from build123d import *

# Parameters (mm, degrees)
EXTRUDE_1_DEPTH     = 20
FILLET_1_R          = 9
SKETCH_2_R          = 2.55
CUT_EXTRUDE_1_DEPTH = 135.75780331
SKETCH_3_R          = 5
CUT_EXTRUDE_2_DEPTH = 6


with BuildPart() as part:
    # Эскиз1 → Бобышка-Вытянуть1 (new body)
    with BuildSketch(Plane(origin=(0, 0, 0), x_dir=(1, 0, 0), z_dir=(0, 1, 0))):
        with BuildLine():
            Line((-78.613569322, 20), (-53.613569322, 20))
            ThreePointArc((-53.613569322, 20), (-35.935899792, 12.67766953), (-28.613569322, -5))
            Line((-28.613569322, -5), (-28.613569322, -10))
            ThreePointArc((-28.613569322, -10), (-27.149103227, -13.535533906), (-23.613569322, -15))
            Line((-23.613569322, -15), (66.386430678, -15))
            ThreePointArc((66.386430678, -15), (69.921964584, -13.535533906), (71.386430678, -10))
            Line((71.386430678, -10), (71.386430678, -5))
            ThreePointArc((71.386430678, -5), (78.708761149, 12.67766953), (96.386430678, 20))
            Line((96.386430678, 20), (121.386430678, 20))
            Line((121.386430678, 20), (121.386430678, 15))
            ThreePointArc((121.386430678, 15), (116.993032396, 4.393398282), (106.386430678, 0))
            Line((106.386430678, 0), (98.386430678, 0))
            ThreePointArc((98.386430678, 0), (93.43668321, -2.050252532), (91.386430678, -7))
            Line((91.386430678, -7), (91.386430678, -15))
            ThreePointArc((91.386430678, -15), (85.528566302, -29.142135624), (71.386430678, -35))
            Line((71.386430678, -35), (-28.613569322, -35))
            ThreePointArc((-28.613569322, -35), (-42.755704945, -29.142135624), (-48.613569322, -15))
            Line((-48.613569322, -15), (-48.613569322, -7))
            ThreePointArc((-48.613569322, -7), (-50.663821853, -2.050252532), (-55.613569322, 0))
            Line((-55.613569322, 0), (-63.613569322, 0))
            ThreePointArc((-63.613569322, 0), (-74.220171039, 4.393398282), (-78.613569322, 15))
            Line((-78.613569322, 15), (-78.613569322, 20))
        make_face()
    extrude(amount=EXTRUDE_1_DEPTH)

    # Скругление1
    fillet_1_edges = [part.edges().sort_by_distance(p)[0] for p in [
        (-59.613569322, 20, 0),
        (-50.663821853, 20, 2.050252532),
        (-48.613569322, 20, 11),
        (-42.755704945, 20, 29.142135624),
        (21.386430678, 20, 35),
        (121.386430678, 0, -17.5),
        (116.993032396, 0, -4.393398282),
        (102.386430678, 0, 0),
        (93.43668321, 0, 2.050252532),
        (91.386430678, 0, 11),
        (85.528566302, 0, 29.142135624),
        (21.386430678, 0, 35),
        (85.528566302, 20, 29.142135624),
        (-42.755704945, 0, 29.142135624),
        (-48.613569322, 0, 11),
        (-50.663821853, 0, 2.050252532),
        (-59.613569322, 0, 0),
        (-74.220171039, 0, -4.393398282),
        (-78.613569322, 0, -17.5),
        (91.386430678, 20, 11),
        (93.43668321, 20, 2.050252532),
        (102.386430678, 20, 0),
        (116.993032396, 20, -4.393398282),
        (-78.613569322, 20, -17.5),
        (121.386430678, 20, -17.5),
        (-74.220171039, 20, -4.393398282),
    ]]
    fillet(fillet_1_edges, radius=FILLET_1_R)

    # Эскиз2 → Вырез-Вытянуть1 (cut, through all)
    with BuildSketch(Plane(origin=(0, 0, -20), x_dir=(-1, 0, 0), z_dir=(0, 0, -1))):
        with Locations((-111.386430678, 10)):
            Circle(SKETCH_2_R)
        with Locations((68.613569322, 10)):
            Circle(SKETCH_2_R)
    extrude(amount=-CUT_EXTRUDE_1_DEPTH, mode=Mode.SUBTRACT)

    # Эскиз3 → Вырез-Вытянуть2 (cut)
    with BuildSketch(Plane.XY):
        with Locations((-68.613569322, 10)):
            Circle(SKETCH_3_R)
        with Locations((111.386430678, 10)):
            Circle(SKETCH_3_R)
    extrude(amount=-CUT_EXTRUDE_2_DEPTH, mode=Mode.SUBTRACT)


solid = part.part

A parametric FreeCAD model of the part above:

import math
import FreeCAD as App
import Part
import Sketcher


def edges_at(feature, points):
    """Names of the edges that pass closest to the given points."""
    edges = feature.Shape.Edges
    near = lambda p: min(range(len(edges)), key=lambda i: edges[i].distToShape(Part.Vertex(*p))[0])
    return sorted({f"Edge{near(p) + 1}" for p in points})

doc = App.newDocument("Part")
params = doc.addObject("Spreadsheet::Sheet", "Params")
for row, (alias, value) in enumerate([
    ("sketch1_radius", "15 mm"),
    ("sketch1_radius2", "7 mm"),
    ("sketch1_radius3", "20 mm"),
    ("sketch1_radius4", "25 mm"),
    ("sketch1_radius5", "5 mm"),
    ("pad1_length", "20 mm"),
    ("fillet_radius", "9 mm"),
    ("sketch2_diameter", "5.1 mm"),
    ("sketch3_diameter", "10 mm"),
    ("pocket2_length", "6 mm"),
], start=1):
    params.set(f"A{row}", alias)
    params.set(f"B{row}", "=" + value)
    params.setAlias(f"B{row}", alias)

body = doc.addObject("PartDesign::Body", "Body")

sketch1 = doc.addObject("Sketcher::SketchObject", "Sketch")
body.addObject(sketch1)
sketch1.AttachmentSupport = (doc.XZ_Plane, [""])
sketch1.MapMode = "FlatFace"
sketch1.addGeometry([
    Part.LineSegment(App.Vector(-53.613569, -20, 0), App.Vector(-78.613569, -20, 0)),
    Part.LineSegment(App.Vector(-78.613569, -20, 0), App.Vector(-78.613569, -15, 0)),
    Part.ArcOfCircle(Part.Circle(App.Vector(-63.613569, -15, 0), App.Vector(0, 0, 1), 15), math.radians(90), math.radians(180)),
    Part.LineSegment(App.Vector(-63.613569, 0, 0), App.Vector(-55.613569, 0, 0)),
    Part.ArcOfCircle(Part.Circle(App.Vector(-55.613569, 7, 0), App.Vector(0, 0, 1), 7), math.radians(-90), math.radians(0)),
    Part.LineSegment(App.Vector(-48.613569, 7, 0), App.Vector(-48.613569, 15, 0)),
    Part.ArcOfCircle(Part.Circle(App.Vector(-28.613569, 15, 0), App.Vector(0, 0, 1), 20), math.radians(90), math.radians(180)),
    Part.LineSegment(App.Vector(-28.613569, 35, 0), App.Vector(71.386431, 35, 0)),
    Part.ArcOfCircle(Part.Circle(App.Vector(71.386431, 15, 0), App.Vector(0, 0, 1), 20), math.radians(0), math.radians(90)),
    Part.LineSegment(App.Vector(91.386431, 15, 0), App.Vector(91.386431, 7, 0)),
    Part.ArcOfCircle(Part.Circle(App.Vector(98.386431, 7, 0), App.Vector(0, 0, 1), 7), math.radians(-180), math.radians(-90)),
    Part.LineSegment(App.Vector(98.386431, 0, 0), App.Vector(106.386431, 0, 0)),
    Part.ArcOfCircle(Part.Circle(App.Vector(106.386431, -15, 0), App.Vector(0, 0, 1), 15), math.radians(0), math.radians(90)),
    Part.LineSegment(App.Vector(121.386431, -15, 0), App.Vector(121.386431, -20, 0)),
    Part.LineSegment(App.Vector(121.386431, -20, 0), App.Vector(96.386431, -20, 0)),
    Part.ArcOfCircle(Part.Circle(App.Vector(96.386431, 5, 0), App.Vector(0, 0, 1), 25), math.radians(-180), math.radians(-90)),
    Part.LineSegment(App.Vector(71.386431, 5, 0), App.Vector(71.386431, 10, 0)),
    Part.ArcOfCircle(Part.Circle(App.Vector(66.386431, 10, 0), App.Vector(0, 0, 1), 5), math.radians(0), math.radians(90)),
    Part.LineSegment(App.Vector(66.386431, 15, 0), App.Vector(-23.613569, 15, 0)),
    Part.ArcOfCircle(Part.Circle(App.Vector(-23.613569, 10, 0), App.Vector(0, 0, 1), 5), math.radians(90), math.radians(180)),
    Part.LineSegment(App.Vector(-28.613569, 10, 0), App.Vector(-28.613569, 5, 0)),
    Part.ArcOfCircle(Part.Circle(App.Vector(-53.613569, 5, 0), App.Vector(0, 0, 1), 25), math.radians(-90), math.radians(0)),
], False)
sketch1.addConstraint([
    Sketcher.Constraint("Coincident", 0, 2, 1, 1),
    Sketcher.Constraint("Tangent", 1, 2, 2, 2),
    Sketcher.Constraint("Tangent", 2, 1, 3, 1),
    Sketcher.Constraint("Tangent", 3, 2, 4, 1),
    Sketcher.Constraint("Tangent", 4, 2, 5, 1),
    Sketcher.Constraint("Tangent", 5, 2, 6, 2),
    Sketcher.Constraint("Tangent", 6, 1, 7, 1),
    Sketcher.Constraint("Tangent", 7, 2, 8, 2),
    Sketcher.Constraint("Tangent", 8, 1, 9, 1),
    Sketcher.Constraint("Tangent", 9, 2, 10, 1),
    Sketcher.Constraint("Tangent", 10, 2, 11, 1),
    Sketcher.Constraint("Tangent", 11, 2, 12, 2),
    Sketcher.Constraint("Tangent", 12, 1, 13, 1),
    Sketcher.Constraint("Coincident", 13, 2, 14, 1),
    Sketcher.Constraint("Tangent", 14, 2, 15, 2),
    Sketcher.Constraint("Tangent", 15, 1, 16, 1),
    Sketcher.Constraint("Tangent", 16, 2, 17, 1),
    Sketcher.Constraint("Tangent", 17, 2, 18, 1),
    Sketcher.Constraint("Tangent", 18, 2, 19, 1),
    Sketcher.Constraint("Tangent", 19, 2, 20, 1),
    Sketcher.Constraint("Tangent", 20, 2, 21, 2),
    Sketcher.Constraint("Tangent", 21, 1, 0, 1),
    Sketcher.Constraint("Horizontal", 0),
    Sketcher.Constraint("Vertical", 1),
    Sketcher.Constraint("Horizontal", 3),
    Sketcher.Constraint("Vertical", 5),
    Sketcher.Constraint("Horizontal", 7),
    Sketcher.Constraint("Vertical", 9),
    Sketcher.Constraint("Horizontal", 11),
    Sketcher.Constraint("Vertical", 13),
    Sketcher.Constraint("Horizontal", 14),
    Sketcher.Constraint("Vertical", 16),
    Sketcher.Constraint("Horizontal", 18),
    Sketcher.Constraint("Vertical", 20),
    Sketcher.Constraint("Equal", 6, 8),
    Sketcher.Constraint("Equal", 4, 10),
    Sketcher.Constraint("Equal", 2, 12),
    Sketcher.Constraint("Equal", 17, 19),
    Sketcher.Constraint("Equal", 15, 21),
    Sketcher.Constraint("PointOnObject", 2, 1, -1),
    Sketcher.Constraint("PointOnObject", 10, 2, -1),
    Sketcher.Constraint("Horizontal", 15, 3, 21, 3),
    Sketcher.Constraint("Horizontal", 8, 1, 17, 2),
    Sketcher.Constraint("Vertical", 7, 2, 15, 1),
    Sketcher.Constraint("Vertical", 6, 1, 19, 2),
    Sketcher.Constraint("Equal", 3, 11),
    Sketcher.Constraint("Equal", 11, 5),
    Sketcher.Constraint("Equal", 13, 16),
    Sketcher.Constraint("Radius", 2, 15.0),
    Sketcher.Constraint("Radius", 4, 7.0),
    Sketcher.Constraint("Radius", 6, 20.0),
    Sketcher.Constraint("Radius", 15, 25.0),
    Sketcher.Constraint("Radius", 17, 5.0),
    Sketcher.Constraint("DistanceX", 7, 1, 7, 2, 100.0),
    Sketcher.Constraint("DistanceY", 1, 1, 1, 2, 5.0),
    Sketcher.Constraint("DistanceX", 2, 3, -1, 1, 63.613569),
])
sketch1.setExpression("Constraints[48]", "Params.sketch1_radius")
sketch1.setExpression("Constraints[49]", "Params.sketch1_radius2")
sketch1.setExpression("Constraints[50]", "Params.sketch1_radius3")
sketch1.setExpression("Constraints[51]", "Params.sketch1_radius4")
sketch1.setExpression("Constraints[52]", "Params.sketch1_radius5")
pad1 = doc.addObject("PartDesign::Pad", "Pad")
body.addObject(pad1)
pad1.Profile = sketch1
pad1.setExpression("Length", "Params.pad1_length")
pad1.Reversed = True
doc.recompute()

fillet = doc.addObject("PartDesign::Fillet", "Fillet")
body.addObject(fillet)
fillet.Base = (pad1, edges_at(pad1, [
    (-59.614, 20, 0),
    (-50.664, 20, 2.05),
    (-48.614, 20, 11),
    (-42.756, 20, 29.142),
    (21.386, 20, 35),
    (121.386, 0, -17.5),
    (116.993, 0, -4.393),
    (102.386, 0, 0),
    (93.437, 0, 2.05),
    (91.386, 0, 11),
    (85.529, 0, 29.142),
    (21.386, 0, 35),
    (85.529, 20, 29.142),
    (-42.756, 0, 29.142),
    (-48.614, 0, 11),
    (-50.664, 0, 2.05),
    (-59.614, 0, 0),
    (-74.22, 0, -4.393),
    (-78.614, 0, -17.5),
    (91.386, 20, 11),
    (93.437, 20, 2.05),
    (102.386, 20, 0),
    (116.993, 20, -4.393),
    (-78.614, 20, -17.5),
    (121.386, 20, -17.5),
    (-74.22, 20, -4.393),
]))
fillet.setExpression("Radius", "Params.fillet_radius")

sketch2 = doc.addObject("Sketcher::SketchObject", "Sketch001")
body.addObject(sketch2)
sketch2.AttachmentSupport = (doc.XY_Plane, [""])
sketch2.MapMode = "FlatFace"
sketch2.AttachmentOffset = App.Placement(App.Vector(0, 0, -20), App.Rotation())
sketch2.addGeometry([
    Part.Circle(App.Vector(111.386431, 10, 0), App.Vector(0, 0, 1), 2.55),
    Part.Circle(App.Vector(-68.613569, 10, 0), App.Vector(0, 0, 1), 2.55),
], False)
sketch2.addConstraint([
    Sketcher.Constraint("Equal", 0, 1),
    Sketcher.Constraint("Horizontal", 0, 3, 1, 3),
    Sketcher.Constraint("Diameter", 0, 5.1),
    Sketcher.Constraint("DistanceY", -1, 1, 0, 3, 10.0),
    Sketcher.Constraint("DistanceX", 1, 3, 0, 3, 180.0),
    Sketcher.Constraint("DistanceX", -1, 1, 0, 3, 111.386431),
])
sketch2.setExpression("Constraints[2]", "Params.sketch2_diameter")
pocket1 = doc.addObject("PartDesign::Pocket", "Pocket")
body.addObject(pocket1)
pocket1.Profile = sketch2
pocket1.Type = "ThroughAll"
pocket1.Reversed = True

sketch3 = doc.addObject("Sketcher::SketchObject", "Sketch002")
body.addObject(sketch3)
sketch3.AttachmentSupport = (doc.XY_Plane, [""])
sketch3.MapMode = "FlatFace"
sketch3.addGeometry([
    Part.Circle(App.Vector(-68.613569, 10, 0), App.Vector(0, 0, 1), 5),
    Part.Circle(App.Vector(111.386431, 10, 0), App.Vector(0, 0, 1), 5),
], False)
sketch3.addConstraint([
    Sketcher.Constraint("Equal", 0, 1),
    Sketcher.Constraint("Horizontal", 0, 3, 1, 3),
    Sketcher.Constraint("Diameter", 0, 10.0),
    Sketcher.Constraint("DistanceY", -1, 1, 0, 3, 10.0),
    Sketcher.Constraint("DistanceX", 0, 3, 1, 3, 180.0),
    Sketcher.Constraint("DistanceX", 0, 3, -1, 1, 68.613569),
])
sketch3.setExpression("Constraints[2]", "Params.sketch3_diameter")
pocket2 = doc.addObject("PartDesign::Pocket", "Pocket001")
body.addObject(pocket2)
pocket2.Profile = sketch3
pocket2.setExpression("Length", "Params.pocket2_length")

doc.recompute()
